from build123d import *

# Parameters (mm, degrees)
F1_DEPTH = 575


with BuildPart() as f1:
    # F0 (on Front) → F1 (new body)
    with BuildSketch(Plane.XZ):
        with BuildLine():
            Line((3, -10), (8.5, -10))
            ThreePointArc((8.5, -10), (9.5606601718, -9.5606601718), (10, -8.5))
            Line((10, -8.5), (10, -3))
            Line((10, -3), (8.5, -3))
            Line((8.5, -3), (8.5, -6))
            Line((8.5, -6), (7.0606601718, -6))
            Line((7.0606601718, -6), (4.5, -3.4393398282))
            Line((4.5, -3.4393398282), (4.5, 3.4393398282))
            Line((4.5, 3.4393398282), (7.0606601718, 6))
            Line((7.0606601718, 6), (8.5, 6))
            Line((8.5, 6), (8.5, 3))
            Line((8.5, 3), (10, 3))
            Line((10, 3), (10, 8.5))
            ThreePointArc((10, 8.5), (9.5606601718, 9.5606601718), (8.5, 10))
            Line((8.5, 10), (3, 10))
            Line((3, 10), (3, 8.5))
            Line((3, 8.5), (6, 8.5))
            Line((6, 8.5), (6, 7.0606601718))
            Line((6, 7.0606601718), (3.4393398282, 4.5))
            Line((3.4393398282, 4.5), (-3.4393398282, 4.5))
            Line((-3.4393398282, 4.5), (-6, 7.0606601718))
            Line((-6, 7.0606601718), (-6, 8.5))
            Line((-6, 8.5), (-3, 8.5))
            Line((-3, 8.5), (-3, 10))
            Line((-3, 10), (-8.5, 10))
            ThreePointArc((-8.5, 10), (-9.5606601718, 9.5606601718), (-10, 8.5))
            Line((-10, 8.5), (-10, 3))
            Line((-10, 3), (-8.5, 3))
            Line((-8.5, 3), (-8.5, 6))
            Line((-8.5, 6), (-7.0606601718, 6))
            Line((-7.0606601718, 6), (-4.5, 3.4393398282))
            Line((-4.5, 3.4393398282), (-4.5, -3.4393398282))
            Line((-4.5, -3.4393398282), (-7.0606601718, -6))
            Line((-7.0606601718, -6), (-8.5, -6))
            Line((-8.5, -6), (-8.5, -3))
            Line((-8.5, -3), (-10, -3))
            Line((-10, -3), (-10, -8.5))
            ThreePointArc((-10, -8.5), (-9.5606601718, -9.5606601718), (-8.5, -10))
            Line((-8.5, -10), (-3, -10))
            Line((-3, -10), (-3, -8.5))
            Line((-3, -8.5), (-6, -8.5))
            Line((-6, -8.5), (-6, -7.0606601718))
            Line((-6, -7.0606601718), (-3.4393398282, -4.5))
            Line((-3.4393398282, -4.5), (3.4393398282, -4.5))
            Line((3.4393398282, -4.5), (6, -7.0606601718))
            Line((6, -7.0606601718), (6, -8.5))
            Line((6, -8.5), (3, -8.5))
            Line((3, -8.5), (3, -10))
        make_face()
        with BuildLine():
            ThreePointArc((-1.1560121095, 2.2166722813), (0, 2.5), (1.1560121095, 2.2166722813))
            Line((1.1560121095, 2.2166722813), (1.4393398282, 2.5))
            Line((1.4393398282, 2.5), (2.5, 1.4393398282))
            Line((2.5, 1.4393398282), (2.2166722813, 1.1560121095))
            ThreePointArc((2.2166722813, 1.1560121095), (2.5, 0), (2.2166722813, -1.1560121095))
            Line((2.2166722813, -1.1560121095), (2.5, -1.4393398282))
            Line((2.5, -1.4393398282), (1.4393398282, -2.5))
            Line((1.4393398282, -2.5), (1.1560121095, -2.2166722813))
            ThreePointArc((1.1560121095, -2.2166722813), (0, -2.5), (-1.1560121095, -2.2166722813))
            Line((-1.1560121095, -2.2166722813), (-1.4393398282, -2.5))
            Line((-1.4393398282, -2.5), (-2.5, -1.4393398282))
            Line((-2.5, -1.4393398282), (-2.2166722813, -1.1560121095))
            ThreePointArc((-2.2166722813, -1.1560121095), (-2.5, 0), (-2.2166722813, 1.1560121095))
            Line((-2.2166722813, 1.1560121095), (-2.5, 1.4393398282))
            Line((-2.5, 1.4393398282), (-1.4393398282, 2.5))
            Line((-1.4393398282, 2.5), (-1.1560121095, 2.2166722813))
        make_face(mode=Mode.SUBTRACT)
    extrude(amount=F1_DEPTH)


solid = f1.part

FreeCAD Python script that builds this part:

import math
import FreeCAD as App
import Part
import Sketcher
from FreeCAD import Vector

doc = App.newDocument("Part")
body = doc.addObject("PartDesign::Body", "Body")

sketch1 = body.newObject("Sketcher::SketchObject", "Sketch")
sketch1.AttachmentSupport = (doc.getObject("XZ_Plane"), [""])
sketch1.MapMode = "FlatFace"
sketch1.addGeometry([
    Part.LineSegment(Vector(3, -10, 0), Vector(8.5, -10, 0)),
    Part.ArcOfCircle(Part.Circle(Vector(8.5, -8.5, 0), Vector(0, 0, 1), 1.5), math.radians(-90), math.radians(0)),
    Part.LineSegment(Vector(10, -8.5, 0), Vector(10, -3, 0)),
    Part.LineSegment(Vector(10, -3, 0), Vector(8.5, -3, 0)),
    Part.LineSegment(Vector(8.5, -3, 0), Vector(8.5, -6, 0)),
    Part.LineSegment(Vector(8.5, -6, 0), Vector(7.06, -6, 0)),
    Part.LineSegment(Vector(7.06, -6, 0), Vector(4.5, -3.44, 0)),
    Part.LineSegment(Vector(4.5, -3.44, 0), Vector(4.5, 3.44, 0)),
    Part.LineSegment(Vector(4.5, 3.44, 0), Vector(7.06, 6, 0)),
    Part.LineSegment(Vector(7.06, 6, 0), Vector(8.5, 6, 0)),
    Part.LineSegment(Vector(8.5, 6, 0), Vector(8.5, 3, 0)),
    Part.LineSegment(Vector(8.5, 3, 0), Vector(10, 3, 0)),
    Part.LineSegment(Vector(10, 3, 0), Vector(10, 8.5, 0)),
    Part.ArcOfCircle(Part.Circle(Vector(8.5, 8.5, 0), Vector(0, 0, 1), 1.5), math.radians(0), math.radians(90)),
    Part.LineSegment(Vector(8.5, 10, 0), Vector(3, 10, 0)),
    Part.LineSegment(Vector(3, 10, 0), Vector(3, 8.5, 0)),
    Part.LineSegment(Vector(3, 8.5, 0), Vector(6, 8.5, 0)),
    Part.LineSegment(Vector(6, 8.5, 0), Vector(6, 7.06, 0)),
    Part.LineSegment(Vector(6, 7.06, 0), Vector(3.44, 4.5, 0)),
    Part.LineSegment(Vector(3.44, 4.5, 0), Vector(-3.44, 4.5, 0)),
    Part.LineSegment(Vector(-3.44, 4.5, 0), Vector(-6, 7.06, 0)),
    Part.LineSegment(Vector(-6, 7.06, 0), Vector(-6, 8.5, 0)),
    Part.LineSegment(Vector(-6, 8.5, 0), Vector(-3, 8.5, 0)),
    Part.LineSegment(Vector(-3, 8.5, 0), Vector(-3, 10, 0)),
    Part.LineSegment(Vector(-3, 10, 0), Vector(-8.5, 10, 0)),
    Part.ArcOfCircle(Part.Circle(Vector(-8.5, 8.5, 0), Vector(0, 0, 1), 1.5), math.radians(90), math.radians(180)),
    Part.LineSegment(Vector(-10, 8.5, 0), Vector(-10, 3, 0)),
    Part.LineSegment(Vector(-10, 3, 0), Vector(-8.5, 3, 0)),
    Part.LineSegment(Vector(-8.5, 3, 0), Vector(-8.5, 6, 0)),
    Part.LineSegment(Vector(-8.5, 6, 0), Vector(-7.06, 6, 0)),
    Part.LineSegment(Vector(-7.06, 6, 0), Vector(-4.5, 3.44, 0)),
    Part.LineSegment(Vector(-4.5, 3.44, 0), Vector(-4.5, -3.44, 0)),
    Part.LineSegment(Vector(-4.5, -3.44, 0), Vector(-7.06, -6, 0)),
    Part.LineSegment(Vector(-7.06, -6, 0), Vector(-8.5, -6, 0)),
    Part.LineSegment(Vector(-8.5, -6, 0), Vector(-8.5, -3, 0)),
    Part.LineSegment(Vector(-8.5, -3, 0), Vector(-10, -3, 0)),
    Part.LineSegment(Vector(-10, -3, 0), Vector(-10, -8.5, 0)),
    Part.ArcOfCircle(Part.Circle(Vector(-8.5, -8.5, 0), Vector(0, 0, 1), 1.5), math.radians(180), math.radians(270)),
    Part.LineSegment(Vector(-8.5, -10, 0), Vector(-3, -10, 0)),
    Part.LineSegment(Vector(-3, -10, 0), Vector(-3, -8.5, 0)),
    Part.LineSegment(Vector(-3, -8.5, 0), Vector(-6, -8.5, 0)),
    Part.LineSegment(Vector(-6, -8.5, 0), Vector(-6, -7.06, 0)),
    Part.LineSegment(Vector(-6, -7.06, 0), Vector(-3.44, -4.5, 0)),
    Part.LineSegment(Vector(-3.44, -4.5, 0), Vector(3.44, -4.5, 0)),
    Part.LineSegment(Vector(3.44, -4.5, 0), Vector(6, -7.06, 0)),
    Part.LineSegment(Vector(6, -7.06, 0), Vector(6, -8.5, 0)),
    Part.LineSegment(Vector(6, -8.5, 0), Vector(3, -8.5, 0)),
    Part.LineSegment(Vector(3, -8.5, 0), Vector(3, -10, 0)),
    Part.LineSegment(Vector(-1.44, 2.5, 0), Vector(-1.16, 2.22, 0)),
    Part.ArcOfCircle(Part.Circle(Vector(0, 0, 0), Vector(0, 0, 1), 2.5), math.radians(62), math.radians(118)),
    Part.LineSegment(Vector(1.16, 2.22, 0), Vector(1.44, 2.5, 0)),
    Part.LineSegment(Vector(1.44, 2.5, 0), Vector(2.5, 1.44, 0)),
    Part.LineSegment(Vector(2.5, 1.44, 0), Vector(2.22, 1.16, 0)),
    Part.ArcOfCircle(Part.Circle(Vector(0, 0, 0), Vector(0, 0, 1), 2.5), math.radians(-28), math.radians(28)),
    Part.LineSegment(Vector(2.22, -1.16, 0), Vector(2.5, -1.44, 0)),
    Part.LineSegment(Vector(2.5, -1.44, 0), Vector(1.44, -2.5, 0)),
    Part.LineSegment(Vector(1.44, -2.5, 0), Vector(1.16, -2.22, 0)),
    Part.ArcOfCircle(Part.Circle(Vector(0, 0, 0), Vector(0, 0, 1), 2.5), math.radians(-118), math.radians(-62)),
    Part.LineSegment(Vector(-1.16, -2.22, 0), Vector(-1.44, -2.5, 0)),
    Part.LineSegment(Vector(-1.44, -2.5, 0), Vector(-2.5, -1.44, 0)),
    Part.LineSegment(Vector(-2.5, -1.44, 0), Vector(-2.22, -1.16, 0)),
    Part.ArcOfCircle(Part.Circle(Vector(0, 0, 0), Vector(0, 0, 1), 2.5), math.radians(152), math.radians(208)),
    Part.LineSegment(Vector(-2.22, 1.16, 0), Vector(-2.5, 1.44, 0)),
    Part.LineSegment(Vector(-2.5, 1.44, 0), Vector(-1.44, 2.5, 0)),
], False)
sketch1.addConstraint([
    Sketcher.Constraint("Tangent", 0, 2, 1, 1),
    Sketcher.Constraint("Tangent", 1, 2, 2, 1),
    Sketcher.Constraint("Coincident", 2, 2, 3, 1),
    Sketcher.Constraint("Coincident", 3, 2, 4, 1),
    Sketcher.Constraint("Coincident", 4, 2, 5, 1),
    Sketcher.Constraint("Coincident", 5, 2, 6, 1),
    Sketcher.Constraint("Coincident", 6, 2, 7, 1),
    Sketcher.Constraint("Coincident", 7, 2, 8, 1),
    Sketcher.Constraint("Coincident", 8, 2, 9, 1),
    Sketcher.Constraint("Coincident", 9, 2, 10, 1),
    Sketcher.Constraint("Coincident", 10, 2, 11, 1),
    Sketcher.Constraint("Coincident", 11, 2, 12, 1),
    Sketcher.Constraint("Tangent", 12, 2, 13, 1),
    Sketcher.Constraint("Tangent", 13, 2, 14, 1),
    Sketcher.Constraint("Coincident", 14, 2, 15, 1),
    Sketcher.Constraint("Coincident", 15, 2, 16, 1),
    Sketcher.Constraint("Coincident", 16, 2, 17, 1),
    Sketcher.Constraint("Coincident", 17, 2, 18, 1),
    Sketcher.Constraint("Coincident", 18, 2, 19, 1),
    Sketcher.Constraint("Coincident", 19, 2, 20, 1),
    Sketcher.Constraint("Coincident", 20, 2, 21, 1),
    Sketcher.Constraint("Coincident", 21, 2, 22, 1),
    Sketcher.Constraint("Coincident", 22, 2, 23, 1),
    Sketcher.Constraint("Coincident", 23, 2, 24, 1),
    Sketcher.Constraint("Tangent", 24, 2, 25, 1),
    Sketcher.Constraint("Tangent", 25, 2, 26, 1),
    Sketcher.Constraint("Coincident", 26, 2, 27, 1),
    Sketcher.Constraint("Coincident", 27, 2, 28, 1),
    Sketcher.Constraint("Coincident", 28, 2, 29, 1),
    Sketcher.Constraint("Coincident", 29, 2, 30, 1),
    Sketcher.Constraint("Coincident", 30, 2, 31, 1),
    Sketcher.Constraint("Coincident", 31, 2, 32, 1),
    Sketcher.Constraint("Coincident", 32, 2, 33, 1),
    Sketcher.Constraint("Coincident", 33, 2, 34, 1),
    Sketcher.Constraint("Coincident", 34, 2, 35, 1),
    Sketcher.Constraint("Coincident", 35, 2, 36, 1),
    Sketcher.Constraint("Tangent", 36, 2, 37, 1),
    Sketcher.Constraint("Tangent", 37, 2, 38, 1),
    Sketcher.Constraint("Coincident", 38, 2, 39, 1),
    Sketcher.Constraint("Coincident", 39, 2, 40, 1),
    Sketcher.Constraint("Coincident", 40, 2, 41, 1),
    Sketcher.Constraint("Coincident", 41, 2, 42, 1),
    Sketcher.Constraint("Coincident", 42, 2, 43, 1),
    Sketcher.Constraint("Coincident", 43, 2, 44, 1),
    Sketcher.Constraint("Coincident", 44, 2, 45, 1),
    Sketcher.Constraint("Coincident", 45, 2, 46, 1),
    Sketcher.Constraint("Coincident", 46, 2, 47, 1),
    Sketcher.Constraint("Coincident", 47, 2, 0, 1),
    Sketcher.Constraint("Coincident", 48, 2, 49, 2),
    Sketcher.Constraint("Coincident", 49, 1, 50, 1),
    Sketcher.Constraint("Coincident", 50, 2, 51, 1),
    Sketcher.Constraint("Coincident", 51, 2, 52, 1),
    Sketcher.Constraint("Coincident", 52, 2, 53, 2),
    Sketcher.Constraint("Coincident", 53, 1, 54, 1),
    Sketcher.Constraint("Coincident", 54, 2, 55, 1),
    Sketcher.Constraint("Coincident", 55, 2, 56, 1),
    Sketcher.Constraint("Coincident", 56, 2, 57, 2),
    Sketcher.Constraint("Coincident", 57, 1, 58, 1),
    Sketcher.Constraint("Coincident", 58, 2, 59, 1),
    Sketcher.Constraint("Coincident", 59, 2, 60, 1),
    Sketcher.Constraint("Coincident", 60, 2, 61, 2),
    Sketcher.Constraint("Coincident", 61, 1, 62, 1),
    Sketcher.Constraint("Coincident", 62, 2, 63, 1),
    Sketcher.Constraint("Coincident", 63, 2, 48, 1),
    Sketcher.Constraint("Horizontal", 0),
    Sketcher.Constraint("Vertical", 2),
    Sketcher.Constraint("Horizontal", 3),
    Sketcher.Constraint("Vertical", 4),
    Sketcher.Constraint("Horizontal", 5),
    Sketcher.Constraint("Vertical", 7),
    Sketcher.Constraint("Horizontal", 9),
    Sketcher.Constraint("Vertical", 10),
    Sketcher.Constraint("Horizontal", 11),
    Sketcher.Constraint("Vertical", 12),
    Sketcher.Constraint("Horizontal", 14),
    Sketcher.Constraint("Vertical", 15),
    Sketcher.Constraint("Horizontal", 16),
    Sketcher.Constraint("Vertical", 17),
    Sketcher.Constraint("Horizontal", 19),
    Sketcher.Constraint("Vertical", 21),
    Sketcher.Constraint("Horizontal", 22),
    Sketcher.Constraint("Vertical", 23),
    Sketcher.Constraint("Horizontal", 24),
    Sketcher.Constraint("Vertical", 26),
    Sketcher.Constraint("Horizontal", 27),
    Sketcher.Constraint("Vertical", 28),
    Sketcher.Constraint("Horizontal", 29),
    Sketcher.Constraint("Vertical", 31),
    Sketcher.Constraint("Horizontal", 33),
    Sketcher.Constraint("Vertical", 34),
    Sketcher.Constraint("Horizontal", 35),
    Sketcher.Constraint("Vertical", 36),
    Sketcher.Constraint("Horizontal", 38),
    Sketcher.Constraint("Vertical", 39),
    Sketcher.Constraint("Horizontal", 40),
    Sketcher.Constraint("Vertical", 41),
    Sketcher.Constraint("Horizontal", 43),
    Sketcher.Constraint("Vertical", 45),
    Sketcher.Constraint("Horizontal", 46),
    Sketcher.Constraint("Vertical", 47),
    Sketcher.Constraint("Coincident", 49, 3, -1, 1),
    Sketcher.Constraint("Coincident", 53, 3, -1, 1),
    Sketcher.Constraint("Coincident", 57, 3, -1, 1),
    Sketcher.Constraint("Coincident", 61, 3, -1, 1),
    Sketcher.Constraint("Equal", 1, 13),
    Sketcher.Constraint("Equal", 13, 25),
    Sketcher.Constraint("Equal", 25, 37),
    Sketcher.Constraint("Equal", 49, 53),
    Sketcher.Constraint("Equal", 53, 57),
    Sketcher.Constraint("Equal", 57, 61),
    Sketcher.Constraint("Symmetric", 1, 3, 25, 3, -1, 1),
    Sketcher.Constraint("Symmetric", 13, 3, 37, 3, -1, 1),
    Sketcher.Constraint("Symmetric", 3, 2, 27, 2, -1, 1),
    Sketcher.Constraint("Symmetric", 5, 2, 29, 2, -1, 1),
    Sketcher.Constraint("Symmetric", 6, 2, 30, 2, -1, 1),
    Sketcher.Constraint("Symmetric", 8, 2, 32, 2, -1, 1),
    Sketcher.Constraint("Symmetric", 10, 2, 34, 2, -1, 1),
    Sketcher.Constraint("Symmetric", 15, 2, 39, 2, -1, 1),
    Sketcher.Constraint("Symmetric", 17, 2, 41, 2, -1, 1),
    Sketcher.Constraint("Symmetric", 18, 2, 42, 2, -1, 1),
    Sketcher.Constraint("Symmetric", 20, 2, 44, 2, -1, 1),
    Sketcher.Constraint("Symmetric", 22, 2, 46, 2, -1, 1),
    Sketcher.Constraint("Symmetric", 50, 2, 58, 2, -1, 1),
    Sketcher.Constraint("Symmetric", 51, 2, 59, 2, -1, 1),
    Sketcher.Constraint("Symmetric", 54, 2, 62, 2, -1, 1),
    Sketcher.Constraint("Symmetric", 55, 2, 63, 2, -1, 1),
    Sketcher.Constraint("Symmetric", 13, 3, 25, 3, -2),
    Sketcher.Constraint("Symmetric", 17, 2, 20, 2, -2),
    Sketcher.Constraint("Symmetric", 15, 2, 22, 2, -2),
    Sketcher.Constraint("Symmetric", 10, 2, 27, 2, -2),
    Sketcher.Constraint("Symmetric", 8, 2, 29, 2, -2),
    Sketcher.Constraint("Symmetric", 55, 2, 58, 2, -2),
    Sketcher.Constraint("Symmetric", 54, 2, 59, 2, -2),
    Sketcher.Constraint("Perpendicular", 6, 8),
    Sketcher.Constraint("Parallel", 8, 18),
    Sketcher.Constraint("Perpendicular", 18, 20),
    Sketcher.Constraint("Perpendicular", 30, 32),
    Sketcher.Constraint("Perpendicular", 42, 44),
    Sketcher.Constraint("Parallel", 44, 48),
    Sketcher.Constraint("Perpendicular", 48, 50),
    Sketcher.Constraint("Perpendicular", 50, 51),
    Sketcher.Constraint("Perpendicular", 51, 52),
    Sketcher.Constraint("Perpendicular", 52, 54),
    Sketcher.Constraint("Perpendicular", 54, 55),
    Sketcher.Constraint("Perpendicular", 55, 56),
    Sketcher.Constraint("Perpendicular", 56, 58),
    Sketcher.Constraint("Perpendicular", 59, 60),
    Sketcher.Constraint("Perpendicular", 60, 62),
    Sketcher.Constraint("Horizontal", 12, 2, 15, 2),
    Sketcher.Constraint("Vertical", 0, 2, 3, 2),
    Sketcher.Constraint("Equal", 38, 2),
    Sketcher.Constraint("Equal", 46, 4),
    Sketcher.Constraint("Equal", 43, 7),
    Sketcher.Constraint("Equal", 33, 17),
    Sketcher.Constraint("Equal", 8, 18),
    Sketcher.Constraint("Equal", 50, 52),
    Sketcher.Constraint("Radius", 1, 1.5),
    Sketcher.Constraint("Radius", 49, 2.5),
    Sketcher.Constraint("DistanceX", 16, 1, 16, 2, 3.0),
    Sketcher.Constraint("DistanceX", 0, 1, 0, 2, 5.5),
    Sketcher.Constraint("DistanceY", 0, 2, -1, 1, 10.0),
    Sketcher.Constraint("Distance", 51, 1.5),
    Sketcher.Constraint("DistanceX", -1, 1, 6, 2, 4.5),
    Sketcher.Constraint("DistanceY", -1, 1, 50, 2, 2.5),
    Sketcher.Constraint("DistanceX", 5, 2, 5, 1, 1.43934),
])
pad1 = body.newObject("PartDesign::Pad", "Pad")
pad1.Profile = sketch1
pad1.Length = 575

doc.recompute()
